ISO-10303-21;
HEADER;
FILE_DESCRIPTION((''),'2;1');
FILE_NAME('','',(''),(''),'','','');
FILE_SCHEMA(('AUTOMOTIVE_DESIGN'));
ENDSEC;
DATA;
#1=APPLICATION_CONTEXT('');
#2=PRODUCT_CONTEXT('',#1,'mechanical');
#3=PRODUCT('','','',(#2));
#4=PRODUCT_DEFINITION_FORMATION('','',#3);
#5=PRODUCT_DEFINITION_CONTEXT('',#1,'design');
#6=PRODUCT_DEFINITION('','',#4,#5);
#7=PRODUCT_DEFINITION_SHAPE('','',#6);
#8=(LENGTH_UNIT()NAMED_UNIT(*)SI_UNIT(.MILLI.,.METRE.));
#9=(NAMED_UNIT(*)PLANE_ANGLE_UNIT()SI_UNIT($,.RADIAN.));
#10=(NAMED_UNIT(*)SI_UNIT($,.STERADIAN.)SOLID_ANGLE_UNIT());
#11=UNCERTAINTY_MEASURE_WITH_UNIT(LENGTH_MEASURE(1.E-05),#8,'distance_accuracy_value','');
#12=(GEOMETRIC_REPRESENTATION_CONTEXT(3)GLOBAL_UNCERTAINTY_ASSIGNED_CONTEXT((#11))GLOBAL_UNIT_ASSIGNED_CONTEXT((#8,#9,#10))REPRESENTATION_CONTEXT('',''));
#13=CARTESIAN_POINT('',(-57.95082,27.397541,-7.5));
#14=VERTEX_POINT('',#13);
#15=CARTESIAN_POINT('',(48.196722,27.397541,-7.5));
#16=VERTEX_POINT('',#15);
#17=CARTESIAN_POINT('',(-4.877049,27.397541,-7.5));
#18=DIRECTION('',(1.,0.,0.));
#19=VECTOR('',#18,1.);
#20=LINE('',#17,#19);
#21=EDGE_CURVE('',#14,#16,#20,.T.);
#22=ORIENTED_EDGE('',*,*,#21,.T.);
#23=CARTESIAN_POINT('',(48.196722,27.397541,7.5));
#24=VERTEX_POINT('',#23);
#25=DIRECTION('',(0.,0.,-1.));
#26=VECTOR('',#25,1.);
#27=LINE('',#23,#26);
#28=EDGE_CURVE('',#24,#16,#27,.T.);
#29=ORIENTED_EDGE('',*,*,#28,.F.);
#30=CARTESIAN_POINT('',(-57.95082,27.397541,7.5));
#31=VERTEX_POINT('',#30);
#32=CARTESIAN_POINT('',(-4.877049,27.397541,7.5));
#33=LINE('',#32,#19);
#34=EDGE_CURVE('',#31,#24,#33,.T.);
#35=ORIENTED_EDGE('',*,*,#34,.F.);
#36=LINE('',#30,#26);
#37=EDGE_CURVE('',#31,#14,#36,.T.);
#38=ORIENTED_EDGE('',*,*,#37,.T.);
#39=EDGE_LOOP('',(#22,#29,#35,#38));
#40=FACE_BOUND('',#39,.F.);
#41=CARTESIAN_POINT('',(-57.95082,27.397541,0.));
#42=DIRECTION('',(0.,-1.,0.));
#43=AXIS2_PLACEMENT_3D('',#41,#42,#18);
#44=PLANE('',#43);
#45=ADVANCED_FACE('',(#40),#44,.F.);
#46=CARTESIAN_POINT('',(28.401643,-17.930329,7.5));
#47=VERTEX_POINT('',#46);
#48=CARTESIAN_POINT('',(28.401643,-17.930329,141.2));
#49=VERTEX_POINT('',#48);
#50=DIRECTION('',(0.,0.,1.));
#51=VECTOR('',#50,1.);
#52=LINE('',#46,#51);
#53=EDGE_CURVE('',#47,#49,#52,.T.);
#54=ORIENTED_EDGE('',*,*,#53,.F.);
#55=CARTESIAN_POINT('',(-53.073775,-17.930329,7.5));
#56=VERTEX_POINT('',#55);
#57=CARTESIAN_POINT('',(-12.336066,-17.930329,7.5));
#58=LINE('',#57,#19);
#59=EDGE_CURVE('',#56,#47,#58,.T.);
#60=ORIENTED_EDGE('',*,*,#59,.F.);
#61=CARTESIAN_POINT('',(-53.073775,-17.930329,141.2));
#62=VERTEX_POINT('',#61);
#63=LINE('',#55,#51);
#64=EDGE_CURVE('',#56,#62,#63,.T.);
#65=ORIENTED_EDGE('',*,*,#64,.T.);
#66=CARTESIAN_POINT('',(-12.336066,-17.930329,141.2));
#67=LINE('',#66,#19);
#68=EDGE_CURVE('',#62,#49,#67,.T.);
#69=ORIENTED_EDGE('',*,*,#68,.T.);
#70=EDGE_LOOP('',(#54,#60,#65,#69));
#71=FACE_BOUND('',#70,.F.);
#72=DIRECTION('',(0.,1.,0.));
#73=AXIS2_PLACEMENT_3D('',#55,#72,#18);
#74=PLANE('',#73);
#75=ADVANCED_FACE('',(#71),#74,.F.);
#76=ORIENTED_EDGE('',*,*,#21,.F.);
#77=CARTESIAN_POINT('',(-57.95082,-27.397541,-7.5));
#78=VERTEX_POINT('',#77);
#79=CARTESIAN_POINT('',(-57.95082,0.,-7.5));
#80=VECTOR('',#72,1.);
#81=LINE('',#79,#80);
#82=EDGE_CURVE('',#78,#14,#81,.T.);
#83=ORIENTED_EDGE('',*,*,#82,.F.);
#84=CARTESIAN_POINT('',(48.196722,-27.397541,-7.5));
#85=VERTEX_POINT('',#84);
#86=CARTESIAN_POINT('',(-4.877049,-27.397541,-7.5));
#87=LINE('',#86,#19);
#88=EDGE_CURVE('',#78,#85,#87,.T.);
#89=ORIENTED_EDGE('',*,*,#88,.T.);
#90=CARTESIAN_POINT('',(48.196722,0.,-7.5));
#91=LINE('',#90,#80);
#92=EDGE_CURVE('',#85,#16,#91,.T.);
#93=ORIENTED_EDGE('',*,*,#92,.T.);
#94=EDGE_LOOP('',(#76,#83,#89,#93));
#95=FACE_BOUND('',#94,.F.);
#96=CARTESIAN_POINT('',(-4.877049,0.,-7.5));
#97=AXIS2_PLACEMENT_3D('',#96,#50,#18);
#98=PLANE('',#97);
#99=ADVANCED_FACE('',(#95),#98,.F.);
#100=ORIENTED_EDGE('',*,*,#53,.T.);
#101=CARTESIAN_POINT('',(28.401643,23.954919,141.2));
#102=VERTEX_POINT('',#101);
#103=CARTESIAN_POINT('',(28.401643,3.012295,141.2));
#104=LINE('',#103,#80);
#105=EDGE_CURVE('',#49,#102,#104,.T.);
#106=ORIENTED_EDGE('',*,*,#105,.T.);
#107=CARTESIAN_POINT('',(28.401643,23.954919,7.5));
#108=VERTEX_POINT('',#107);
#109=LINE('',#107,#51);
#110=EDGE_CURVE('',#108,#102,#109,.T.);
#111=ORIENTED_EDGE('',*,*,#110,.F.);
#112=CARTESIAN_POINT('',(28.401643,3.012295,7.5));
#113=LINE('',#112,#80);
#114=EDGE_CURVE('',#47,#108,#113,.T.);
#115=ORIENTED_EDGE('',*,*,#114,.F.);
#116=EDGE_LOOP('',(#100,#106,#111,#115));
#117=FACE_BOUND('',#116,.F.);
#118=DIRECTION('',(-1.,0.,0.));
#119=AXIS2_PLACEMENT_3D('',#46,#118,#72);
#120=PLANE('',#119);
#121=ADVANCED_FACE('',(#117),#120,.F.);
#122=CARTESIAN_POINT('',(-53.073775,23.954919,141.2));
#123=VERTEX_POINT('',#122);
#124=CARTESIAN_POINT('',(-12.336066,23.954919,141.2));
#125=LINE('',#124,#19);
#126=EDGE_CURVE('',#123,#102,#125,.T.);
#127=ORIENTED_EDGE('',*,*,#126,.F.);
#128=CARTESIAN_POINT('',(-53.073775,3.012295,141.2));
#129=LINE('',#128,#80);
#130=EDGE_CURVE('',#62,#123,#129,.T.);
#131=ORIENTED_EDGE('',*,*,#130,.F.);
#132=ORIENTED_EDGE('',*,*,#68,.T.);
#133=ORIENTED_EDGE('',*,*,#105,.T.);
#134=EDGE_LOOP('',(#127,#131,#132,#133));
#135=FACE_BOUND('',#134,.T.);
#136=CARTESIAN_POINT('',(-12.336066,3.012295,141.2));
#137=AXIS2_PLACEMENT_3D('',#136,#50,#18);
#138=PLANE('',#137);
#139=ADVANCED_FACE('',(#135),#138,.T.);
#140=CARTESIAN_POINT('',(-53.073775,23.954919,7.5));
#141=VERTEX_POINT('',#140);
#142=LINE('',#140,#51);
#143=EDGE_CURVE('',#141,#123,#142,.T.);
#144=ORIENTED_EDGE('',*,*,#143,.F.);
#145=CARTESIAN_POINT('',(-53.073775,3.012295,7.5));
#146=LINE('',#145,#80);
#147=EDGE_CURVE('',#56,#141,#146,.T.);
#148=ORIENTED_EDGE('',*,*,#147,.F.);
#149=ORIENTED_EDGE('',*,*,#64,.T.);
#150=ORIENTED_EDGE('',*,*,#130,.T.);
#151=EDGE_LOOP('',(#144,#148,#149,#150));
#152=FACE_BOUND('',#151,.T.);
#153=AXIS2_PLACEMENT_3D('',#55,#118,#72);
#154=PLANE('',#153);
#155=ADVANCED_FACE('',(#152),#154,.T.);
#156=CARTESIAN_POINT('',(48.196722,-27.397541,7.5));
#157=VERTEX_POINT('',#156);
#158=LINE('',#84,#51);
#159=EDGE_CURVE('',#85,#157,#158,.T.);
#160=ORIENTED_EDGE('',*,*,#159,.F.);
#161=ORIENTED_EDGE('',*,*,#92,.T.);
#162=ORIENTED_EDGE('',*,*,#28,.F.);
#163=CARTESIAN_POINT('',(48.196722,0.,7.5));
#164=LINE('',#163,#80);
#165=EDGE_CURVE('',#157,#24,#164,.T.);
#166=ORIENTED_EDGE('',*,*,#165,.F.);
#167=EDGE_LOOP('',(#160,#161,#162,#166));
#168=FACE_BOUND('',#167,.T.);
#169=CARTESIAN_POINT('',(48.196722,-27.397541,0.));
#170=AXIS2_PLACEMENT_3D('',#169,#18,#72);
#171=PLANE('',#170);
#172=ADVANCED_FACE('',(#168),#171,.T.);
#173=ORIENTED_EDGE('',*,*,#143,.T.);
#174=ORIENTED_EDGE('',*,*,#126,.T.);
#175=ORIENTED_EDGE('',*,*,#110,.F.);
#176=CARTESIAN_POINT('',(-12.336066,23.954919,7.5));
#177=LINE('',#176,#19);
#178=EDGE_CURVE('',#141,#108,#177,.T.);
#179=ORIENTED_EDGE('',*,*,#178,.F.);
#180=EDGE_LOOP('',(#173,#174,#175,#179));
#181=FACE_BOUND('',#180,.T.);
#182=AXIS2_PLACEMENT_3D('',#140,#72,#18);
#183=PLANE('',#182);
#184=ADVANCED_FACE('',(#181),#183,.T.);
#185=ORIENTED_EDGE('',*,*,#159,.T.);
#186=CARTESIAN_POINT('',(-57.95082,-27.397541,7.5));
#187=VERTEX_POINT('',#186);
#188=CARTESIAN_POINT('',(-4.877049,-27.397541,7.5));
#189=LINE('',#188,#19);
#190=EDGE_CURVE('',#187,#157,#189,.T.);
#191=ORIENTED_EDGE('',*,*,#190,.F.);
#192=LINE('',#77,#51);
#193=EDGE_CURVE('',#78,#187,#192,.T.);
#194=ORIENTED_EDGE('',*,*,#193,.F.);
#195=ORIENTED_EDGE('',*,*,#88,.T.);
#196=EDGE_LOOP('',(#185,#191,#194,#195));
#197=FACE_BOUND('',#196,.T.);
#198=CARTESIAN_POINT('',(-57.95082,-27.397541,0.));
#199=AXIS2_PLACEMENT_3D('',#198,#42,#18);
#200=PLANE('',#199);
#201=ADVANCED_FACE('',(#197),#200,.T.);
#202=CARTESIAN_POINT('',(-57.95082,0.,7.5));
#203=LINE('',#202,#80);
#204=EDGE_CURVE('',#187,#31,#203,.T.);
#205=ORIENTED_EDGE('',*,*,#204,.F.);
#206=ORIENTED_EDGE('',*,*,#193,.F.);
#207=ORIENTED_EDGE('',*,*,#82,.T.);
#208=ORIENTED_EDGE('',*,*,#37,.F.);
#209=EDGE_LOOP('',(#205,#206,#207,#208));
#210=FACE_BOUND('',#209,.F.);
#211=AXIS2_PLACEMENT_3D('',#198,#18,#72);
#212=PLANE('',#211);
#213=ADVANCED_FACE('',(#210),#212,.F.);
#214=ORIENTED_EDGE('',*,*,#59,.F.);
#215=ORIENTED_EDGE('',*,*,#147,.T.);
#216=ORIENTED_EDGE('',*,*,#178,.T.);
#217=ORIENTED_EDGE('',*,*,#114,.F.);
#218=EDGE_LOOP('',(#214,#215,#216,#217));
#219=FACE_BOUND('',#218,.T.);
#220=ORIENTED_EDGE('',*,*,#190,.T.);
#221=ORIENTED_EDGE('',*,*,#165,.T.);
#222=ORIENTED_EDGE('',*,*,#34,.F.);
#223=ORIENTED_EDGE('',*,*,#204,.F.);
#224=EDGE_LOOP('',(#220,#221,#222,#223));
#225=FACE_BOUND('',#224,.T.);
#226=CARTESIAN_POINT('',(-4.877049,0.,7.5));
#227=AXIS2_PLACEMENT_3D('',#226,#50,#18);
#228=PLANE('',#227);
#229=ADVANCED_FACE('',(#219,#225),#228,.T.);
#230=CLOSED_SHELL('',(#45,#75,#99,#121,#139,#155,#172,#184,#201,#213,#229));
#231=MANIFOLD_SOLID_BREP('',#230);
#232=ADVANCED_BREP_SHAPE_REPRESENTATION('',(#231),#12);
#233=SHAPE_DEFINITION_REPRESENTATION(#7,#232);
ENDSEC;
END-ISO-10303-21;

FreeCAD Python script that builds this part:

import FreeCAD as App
import Part
import Sketcher
from FreeCAD import Vector
Q = App.Units.Quantity


def add_polygon(sketch, points):
    """Adds a closed chain of lines whose ends are joined by coincident constraints."""
    first, n = sketch.GeometryCount, len(points)
    for a, b in zip(points, points[1:] + points[:1]):
        sketch.addGeometry(Part.LineSegment(App.Vector(*a, 0), App.Vector(*b, 0)), False)
    for i in range(n):
        sketch.addConstraint(Sketcher.Constraint("Coincident", first + i, 2, first + (i + 1) % n, 1))

doc = App.newDocument("Part")
body = doc.addObject("PartDesign::Body", "Body")

# Sketch on XY plane
sketch1 = doc.addObject("Sketcher::SketchObject", "Sketch")
body.addObject(sketch1)
sketch1.AttachmentSupport = (doc.XY_Plane, [""])
sketch1.MapMode = "FlatFace"
add_polygon(sketch1, [(-58, 27), (-58, -27), (48, -27), (48, 27)])  # lines 0-3
sketch1.addConstraint(Sketcher.Constraint("Vertical", 0))
sketch1.addConstraint(Sketcher.Constraint("Horizontal", 1))
sketch1.addConstraint(Sketcher.Constraint("Vertical", 2))
sketch1.addConstraint(Sketcher.Constraint("Horizontal", 3))
sketch1.addConstraint(Sketcher.Constraint("DistanceX", 1, 1, 1, 2, Q("106.147542 mm")))
sketch1.addConstraint(Sketcher.Constraint("DistanceY", 0, 2, 0, 1, Q("54.795082 mm")))
sketch1.addConstraint(Sketcher.Constraint("DistanceX", 0, 2, -1, 1, Q("57.95082 mm")))
sketch1.addConstraint(Sketcher.Constraint("DistanceY", 0, 2, -1, 1, Q("27.397541 mm")))
pad1 = doc.addObject("PartDesign::Pad", "Pad")
body.addObject(pad1)
pad1.Profile = sketch1
pad1.Length = 15
pad1.Midplane = True

# Sketch on XY plane
sketch2 = doc.addObject("Sketcher::SketchObject", "Sketch001")
body.addObject(sketch2)
sketch2.AttachmentSupport = (doc.XY_Plane, [""])
sketch2.MapMode = "FlatFace"
sketch2.AttachmentOffset = App.Placement(Vector(0, 0, 7.5), App.Rotation())
add_polygon(sketch2, [(-53, 24), (-53, -18), (28, -18), (28, 24)])  # lines 0-3
sketch2.addConstraint(Sketcher.Constraint("Vertical", 0))
sketch2.addConstraint(Sketcher.Constraint("Horizontal", 1))
sketch2.addConstraint(Sketcher.Constraint("Vertical", 2))
sketch2.addConstraint(Sketcher.Constraint("Horizontal", 3))
sketch2.addConstraint(Sketcher.Constraint("DistanceY", 0, 2, 0, 1, Q("41.885248 mm")))
sketch2.addConstraint(Sketcher.Constraint("DistanceX", 1, 1, 1, 2, Q("81.475418 mm")))
sketch2.addConstraint(Sketcher.Constraint("DistanceY", 0, 2, -1, 1, Q("17.930329 mm")))
sketch2.addConstraint(Sketcher.Constraint("DistanceX", 0, 2, -1, 1, Q("53.073775 mm")))
pad2 = doc.addObject("PartDesign::Pad", "Pad001")
body.addObject(pad2)
pad2.Profile = sketch2
pad2.Length = 133.7

doc.recompute()
